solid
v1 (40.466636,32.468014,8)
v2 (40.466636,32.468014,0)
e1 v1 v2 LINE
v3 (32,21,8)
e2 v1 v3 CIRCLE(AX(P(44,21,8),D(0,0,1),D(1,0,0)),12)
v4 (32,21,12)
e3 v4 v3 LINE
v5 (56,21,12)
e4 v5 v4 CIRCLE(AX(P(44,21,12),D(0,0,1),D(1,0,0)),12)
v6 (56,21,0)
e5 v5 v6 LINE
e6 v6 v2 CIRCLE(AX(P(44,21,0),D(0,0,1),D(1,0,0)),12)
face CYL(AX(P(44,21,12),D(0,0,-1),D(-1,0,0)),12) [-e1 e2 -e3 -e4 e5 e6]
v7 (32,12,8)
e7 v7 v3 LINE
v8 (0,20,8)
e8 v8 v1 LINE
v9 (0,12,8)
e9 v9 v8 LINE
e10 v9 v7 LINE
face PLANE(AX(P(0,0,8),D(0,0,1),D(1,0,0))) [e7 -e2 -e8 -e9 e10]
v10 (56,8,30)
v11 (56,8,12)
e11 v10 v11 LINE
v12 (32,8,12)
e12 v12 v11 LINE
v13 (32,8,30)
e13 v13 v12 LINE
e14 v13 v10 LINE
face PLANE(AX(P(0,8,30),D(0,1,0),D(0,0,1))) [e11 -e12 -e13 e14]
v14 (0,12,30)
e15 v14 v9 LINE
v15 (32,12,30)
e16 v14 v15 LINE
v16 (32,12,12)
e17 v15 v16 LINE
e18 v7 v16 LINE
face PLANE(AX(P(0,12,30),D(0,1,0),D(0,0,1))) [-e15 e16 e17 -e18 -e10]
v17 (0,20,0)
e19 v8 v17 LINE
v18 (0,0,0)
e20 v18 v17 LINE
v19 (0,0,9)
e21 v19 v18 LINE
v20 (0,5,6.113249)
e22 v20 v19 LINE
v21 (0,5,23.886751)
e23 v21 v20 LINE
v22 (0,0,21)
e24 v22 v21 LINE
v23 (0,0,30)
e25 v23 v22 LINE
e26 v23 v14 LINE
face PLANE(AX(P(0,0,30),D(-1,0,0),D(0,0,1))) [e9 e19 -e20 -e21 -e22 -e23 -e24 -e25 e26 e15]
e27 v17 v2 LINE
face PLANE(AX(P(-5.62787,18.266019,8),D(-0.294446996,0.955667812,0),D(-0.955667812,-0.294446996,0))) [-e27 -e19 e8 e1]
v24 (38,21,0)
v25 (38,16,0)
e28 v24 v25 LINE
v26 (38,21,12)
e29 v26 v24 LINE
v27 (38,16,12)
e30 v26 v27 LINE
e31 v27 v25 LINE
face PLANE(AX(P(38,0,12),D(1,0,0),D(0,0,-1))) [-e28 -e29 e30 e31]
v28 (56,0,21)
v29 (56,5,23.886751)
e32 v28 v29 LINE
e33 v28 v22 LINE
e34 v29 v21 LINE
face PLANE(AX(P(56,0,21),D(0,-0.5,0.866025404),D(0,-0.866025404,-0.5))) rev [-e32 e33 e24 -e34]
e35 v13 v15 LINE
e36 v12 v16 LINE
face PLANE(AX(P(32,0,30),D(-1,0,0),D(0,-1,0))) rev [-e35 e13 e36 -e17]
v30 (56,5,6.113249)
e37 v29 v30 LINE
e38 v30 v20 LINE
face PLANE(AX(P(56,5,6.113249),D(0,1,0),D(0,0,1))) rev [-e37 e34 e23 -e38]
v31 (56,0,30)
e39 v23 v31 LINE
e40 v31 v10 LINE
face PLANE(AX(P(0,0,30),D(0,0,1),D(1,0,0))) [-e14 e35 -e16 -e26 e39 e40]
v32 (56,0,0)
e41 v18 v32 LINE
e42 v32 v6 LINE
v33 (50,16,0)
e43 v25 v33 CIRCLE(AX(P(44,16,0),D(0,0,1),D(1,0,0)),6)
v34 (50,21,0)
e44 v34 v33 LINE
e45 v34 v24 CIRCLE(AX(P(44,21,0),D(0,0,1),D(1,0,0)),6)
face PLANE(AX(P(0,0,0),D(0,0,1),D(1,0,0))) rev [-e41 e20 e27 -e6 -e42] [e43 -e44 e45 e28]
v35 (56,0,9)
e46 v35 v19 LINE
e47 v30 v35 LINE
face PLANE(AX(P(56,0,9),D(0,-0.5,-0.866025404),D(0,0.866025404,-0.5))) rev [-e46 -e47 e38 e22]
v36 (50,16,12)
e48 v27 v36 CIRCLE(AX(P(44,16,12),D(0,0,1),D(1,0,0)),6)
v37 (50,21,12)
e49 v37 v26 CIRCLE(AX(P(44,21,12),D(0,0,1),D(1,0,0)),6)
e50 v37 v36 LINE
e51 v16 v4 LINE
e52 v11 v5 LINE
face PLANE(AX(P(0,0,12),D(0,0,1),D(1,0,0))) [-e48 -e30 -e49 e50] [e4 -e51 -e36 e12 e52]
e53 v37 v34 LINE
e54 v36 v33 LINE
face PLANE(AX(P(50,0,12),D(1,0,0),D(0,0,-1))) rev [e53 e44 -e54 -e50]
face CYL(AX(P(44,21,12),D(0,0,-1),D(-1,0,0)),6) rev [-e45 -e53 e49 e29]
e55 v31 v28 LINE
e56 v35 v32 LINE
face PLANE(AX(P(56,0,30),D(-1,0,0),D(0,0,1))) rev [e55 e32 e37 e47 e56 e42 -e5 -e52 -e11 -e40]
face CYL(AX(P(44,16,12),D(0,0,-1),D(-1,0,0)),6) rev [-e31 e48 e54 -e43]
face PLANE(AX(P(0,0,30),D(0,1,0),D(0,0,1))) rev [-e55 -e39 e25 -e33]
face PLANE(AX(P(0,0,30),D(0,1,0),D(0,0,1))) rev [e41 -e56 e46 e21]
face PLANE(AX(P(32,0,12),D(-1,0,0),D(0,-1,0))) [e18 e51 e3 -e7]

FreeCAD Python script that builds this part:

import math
import FreeCAD as App
import Part
import Sketcher

V = App.Vector
Q = App.Units.Quantity

doc = App.newDocument("Part")
body = doc.addObject("PartDesign::Body", "Body")

# Sketch on XY plane
sketch1 = body.newObject("Sketcher::SketchObject", "Sketch")
sketch1.AttachmentSupport = (doc.getObject("XY_Plane"), [""])
sketch1.MapMode = "FlatFace"
sketch1.addGeometry([
    Part.LineSegment(V(0, 12, 0), V(0, 0, 0)),  # 0
    Part.LineSegment(V(0, 0, 0), V(56, 0, 0)),  # 1
    Part.LineSegment(V(56, 0, 0), V(56, 8, 0)),  # 2
    Part.LineSegment(V(56, 8, 0), V(32, 8, 0)),  # 3
    Part.LineSegment(V(32, 8, 0), V(32, 12, 0)),  # 4
    Part.LineSegment(V(32, 12, 0), V(0, 12, 0)),  # 5
], False)
sketch1.addConstraint([
    Sketcher.Constraint("Coincident", 0, 2, 1, 1),
    Sketcher.Constraint("Coincident", 1, 2, 2, 1),
    Sketcher.Constraint("Coincident", 2, 2, 3, 1),
    Sketcher.Constraint("Coincident", 3, 2, 4, 1),
    Sketcher.Constraint("Coincident", 4, 2, 5, 1),
    Sketcher.Constraint("Coincident", 5, 2, 0, 1),
    Sketcher.Constraint("Vertical", 0),
    Sketcher.Constraint("Horizontal", 1),
    Sketcher.Constraint("Vertical", 2),
    Sketcher.Constraint("Horizontal", 3),
    Sketcher.Constraint("Vertical", 4),
    Sketcher.Constraint("Horizontal", 5),
    Sketcher.Constraint("Coincident", 0, 2, -1, 1),
    Sketcher.Constraint("DistanceX", 1, 1, 1, 2, 56.0),
    Sketcher.Constraint("DistanceX", 3, 2, 3, 1, 24.0),
    Sketcher.Constraint("DistanceY", 0, 2, 0, 1, 12.0),
    Sketcher.Constraint("DistanceY", 2, 1, 2, 2, 8.0),
])
pad1 = body.newObject("PartDesign::Pad", "Pad")
pad1.Profile = sketch1
pad1.Length = 30

# Sketch on XY plane
sketch2 = body.newObject("Sketcher::SketchObject", "Sketch001")
sketch2.AttachmentSupport = (doc.getObject("XY_Plane"), [""])
sketch2.MapMode = "FlatFace"
sketch2.addGeometry([
    Part.LineSegment(V(0, 20, 0), V(0, 12, 0)),  # 0
    Part.LineSegment(V(0, 12, 0), V(32, 12, 0)),  # 1
    Part.LineSegment(V(32, 12, 0), V(32, 21, 0)),  # 2
    Part.ArcOfCircle(Part.Circle(V(44, 21, 0), V(0, 0, 1), 12), math.radians(107.12438), math.radians(180)),  # 3
    Part.LineSegment(V(40.466636, 32.468014, 0), V(0, 20, 0)),  # 4
], False)
sketch2.addConstraint([
    Sketcher.Constraint("Coincident", 0, 2, 1, 1),
    Sketcher.Constraint("Coincident", 1, 2, 2, 1),
    Sketcher.Constraint("Tangent", 2, 2, 3, 2),
    Sketcher.Constraint("Tangent", 3, 1, 4, 1),
    Sketcher.Constraint("Coincident", 4, 2, 0, 1),
    Sketcher.Constraint("Vertical", 0),
    Sketcher.Constraint("Horizontal", 1),
    Sketcher.Constraint("Vertical", 2),
    Sketcher.Constraint("PointOnObject", 0, 2, -2),
    Sketcher.Constraint("Radius", 3, 12.0),
    Sketcher.Constraint("DistanceX", 1, 1, 1, 2, 32.0),
    Sketcher.Constraint("DistanceY", 0, 2, 0, 1, 8.0),
    Sketcher.Constraint("DistanceY", 2, 1, 2, 2, 9.0),
    Sketcher.Constraint("DistanceY", -1, 1, 3, 3, 21.0),
])
pad2 = body.newObject("PartDesign::Pad", "Pad001")
pad2.Profile = sketch2
pad2.Length = 8

# Sketch on XY plane
sketch3 = body.newObject("Sketcher::SketchObject", "Sketch002")
sketch3.AttachmentSupport = (doc.getObject("XY_Plane"), [""])
sketch3.MapMode = "FlatFace"
sketch3.addGeometry([
    Part.LineSegment(V(32, 8, 0), V(56, 8, 0)),  # 0
    Part.LineSegment(V(56, 8, 0), V(56, 21, 0)),  # 1
    Part.ArcOfCircle(Part.Circle(V(44, 21, 0), V(0, 0, 1), 12), math.radians(0), math.radians(107.12438)),  # 2
    Part.ArcOfCircle(Part.Circle(V(44, 21, 0), V(0, 0, 1), 12), math.radians(107.12438), math.radians(180)),  # 3
    Part.LineSegment(V(32, 21, 0), V(32, 8, 0)),  # 4
    Part.LineSegment(V(38, 16, 0), V(38, 21, 0)),  # 5
    Part.ArcOfCircle(Part.Circle(V(44, 21, 0), V(0, 0, 1), 6), math.radians(0), math.radians(180)),  # 6
    Part.LineSegment(V(50, 21, 0), V(50, 16, 0)),  # 7
    Part.ArcOfCircle(Part.Circle(V(44, 16, 0), V(0, 0, 1), 6), math.radians(180), math.radians(360)),  # 8
], False)
sketch3.addConstraint([
    Sketcher.Constraint("Coincident", 0, 2, 1, 1),
    Sketcher.Constraint("Tangent", 1, 2, 2, 1),
    Sketcher.Constraint("Tangent", 2, 2, 3, 1),
    Sketcher.Constraint("Tangent", 3, 2, 4, 1),
    Sketcher.Constraint("Coincident", 4, 2, 0, 1),
    Sketcher.Constraint("Tangent", 5, 2, 6, 2),
    Sketcher.Constraint("Tangent", 6, 1, 7, 1),
    Sketcher.Constraint("Tangent", 7, 2, 8, 2),
    Sketcher.Constraint("Tangent", 8, 1, 5, 1),
    Sketcher.Constraint("Horizontal", 0),
    Sketcher.Constraint("Vertical", 1),
    Sketcher.Constraint("Vertical", 4),
    Sketcher.Constraint("Vertical", 5),
    Sketcher.Constraint("Vertical", 7),
    Sketcher.Constraint("Coincident", 6, 3, 2, 3),
    Sketcher.Constraint("Equal", 2, 3),
    Sketcher.Constraint("Radius", 2, 12.0),
    Sketcher.Constraint("Radius", 6, 6.0),
    Sketcher.Constraint("DistanceY", 1, 1, 1, 2, 13.0),
    Sketcher.Constraint("DistanceY", 5, 1, 5, 2, 5.0),
    Sketcher.Constraint("DistanceX", -1, 1, 2, 3, 44.0),
    Sketcher.Constraint("DistanceY", -1, 1, 2, 3, 21.0),
    Sketcher.Constraint("DistanceX", -1, 1, 2, 2, 40.466636),
])
pad3 = body.newObject("PartDesign::Pad", "Pad002")
pad3.Profile = sketch3
pad3.Length = 12

# Sketch on YZ plane
sketch4 = body.newObject("Sketcher::SketchObject", "Sketch003")
sketch4.AttachmentSupport = (doc.getObject("YZ_Plane"), [""])
sketch4.MapMode = "FlatFace"
sketch4.addGeometry([
    Part.LineSegment(V(5, 6.113249, 0), V(0, 9, 0)),
    Part.LineSegment(V(0, 9, 0), V(0, 21, 0)),
    Part.LineSegment(V(0, 21, 0), V(5, 23.886751, 0)),
    Part.LineSegment(V(5, 23.886751, 0), V(5, 6.113249, 0)),
], False)
sketch4.addConstraint([
    Sketcher.Constraint("Coincident", 0, 2, 1, 1),
    Sketcher.Constraint("Coincident", 1, 2, 2, 1),
    Sketcher.Constraint("Coincident", 2, 2, 3, 1),
    Sketcher.Constraint("Coincident", 3, 2, 0, 1),
    Sketcher.Constraint("Vertical", 1),
    Sketcher.Constraint("Vertical", 3),
    Sketcher.Constraint("PointOnObject", 0, 2, -2),
    Sketcher.Constraint("Equal", 0, 2),
    Sketcher.Constraint("DistanceY", 1, 1, 1, 2, 12.0),
    Sketcher.Constraint("Angle", 0, Q("150 deg")),
    Sketcher.Constraint("DistanceY", -1, 1, 0, 2, 9.0),
    Sketcher.Constraint("DistanceX", -1, 1, 2, 2, 5.0),
])
pocket1 = body.newObject("PartDesign::Pocket", "Pocket")
pocket1.Profile = sketch4
pocket1.Type = "ThroughAll"
pocket1.Reversed = True

doc.recompute()
